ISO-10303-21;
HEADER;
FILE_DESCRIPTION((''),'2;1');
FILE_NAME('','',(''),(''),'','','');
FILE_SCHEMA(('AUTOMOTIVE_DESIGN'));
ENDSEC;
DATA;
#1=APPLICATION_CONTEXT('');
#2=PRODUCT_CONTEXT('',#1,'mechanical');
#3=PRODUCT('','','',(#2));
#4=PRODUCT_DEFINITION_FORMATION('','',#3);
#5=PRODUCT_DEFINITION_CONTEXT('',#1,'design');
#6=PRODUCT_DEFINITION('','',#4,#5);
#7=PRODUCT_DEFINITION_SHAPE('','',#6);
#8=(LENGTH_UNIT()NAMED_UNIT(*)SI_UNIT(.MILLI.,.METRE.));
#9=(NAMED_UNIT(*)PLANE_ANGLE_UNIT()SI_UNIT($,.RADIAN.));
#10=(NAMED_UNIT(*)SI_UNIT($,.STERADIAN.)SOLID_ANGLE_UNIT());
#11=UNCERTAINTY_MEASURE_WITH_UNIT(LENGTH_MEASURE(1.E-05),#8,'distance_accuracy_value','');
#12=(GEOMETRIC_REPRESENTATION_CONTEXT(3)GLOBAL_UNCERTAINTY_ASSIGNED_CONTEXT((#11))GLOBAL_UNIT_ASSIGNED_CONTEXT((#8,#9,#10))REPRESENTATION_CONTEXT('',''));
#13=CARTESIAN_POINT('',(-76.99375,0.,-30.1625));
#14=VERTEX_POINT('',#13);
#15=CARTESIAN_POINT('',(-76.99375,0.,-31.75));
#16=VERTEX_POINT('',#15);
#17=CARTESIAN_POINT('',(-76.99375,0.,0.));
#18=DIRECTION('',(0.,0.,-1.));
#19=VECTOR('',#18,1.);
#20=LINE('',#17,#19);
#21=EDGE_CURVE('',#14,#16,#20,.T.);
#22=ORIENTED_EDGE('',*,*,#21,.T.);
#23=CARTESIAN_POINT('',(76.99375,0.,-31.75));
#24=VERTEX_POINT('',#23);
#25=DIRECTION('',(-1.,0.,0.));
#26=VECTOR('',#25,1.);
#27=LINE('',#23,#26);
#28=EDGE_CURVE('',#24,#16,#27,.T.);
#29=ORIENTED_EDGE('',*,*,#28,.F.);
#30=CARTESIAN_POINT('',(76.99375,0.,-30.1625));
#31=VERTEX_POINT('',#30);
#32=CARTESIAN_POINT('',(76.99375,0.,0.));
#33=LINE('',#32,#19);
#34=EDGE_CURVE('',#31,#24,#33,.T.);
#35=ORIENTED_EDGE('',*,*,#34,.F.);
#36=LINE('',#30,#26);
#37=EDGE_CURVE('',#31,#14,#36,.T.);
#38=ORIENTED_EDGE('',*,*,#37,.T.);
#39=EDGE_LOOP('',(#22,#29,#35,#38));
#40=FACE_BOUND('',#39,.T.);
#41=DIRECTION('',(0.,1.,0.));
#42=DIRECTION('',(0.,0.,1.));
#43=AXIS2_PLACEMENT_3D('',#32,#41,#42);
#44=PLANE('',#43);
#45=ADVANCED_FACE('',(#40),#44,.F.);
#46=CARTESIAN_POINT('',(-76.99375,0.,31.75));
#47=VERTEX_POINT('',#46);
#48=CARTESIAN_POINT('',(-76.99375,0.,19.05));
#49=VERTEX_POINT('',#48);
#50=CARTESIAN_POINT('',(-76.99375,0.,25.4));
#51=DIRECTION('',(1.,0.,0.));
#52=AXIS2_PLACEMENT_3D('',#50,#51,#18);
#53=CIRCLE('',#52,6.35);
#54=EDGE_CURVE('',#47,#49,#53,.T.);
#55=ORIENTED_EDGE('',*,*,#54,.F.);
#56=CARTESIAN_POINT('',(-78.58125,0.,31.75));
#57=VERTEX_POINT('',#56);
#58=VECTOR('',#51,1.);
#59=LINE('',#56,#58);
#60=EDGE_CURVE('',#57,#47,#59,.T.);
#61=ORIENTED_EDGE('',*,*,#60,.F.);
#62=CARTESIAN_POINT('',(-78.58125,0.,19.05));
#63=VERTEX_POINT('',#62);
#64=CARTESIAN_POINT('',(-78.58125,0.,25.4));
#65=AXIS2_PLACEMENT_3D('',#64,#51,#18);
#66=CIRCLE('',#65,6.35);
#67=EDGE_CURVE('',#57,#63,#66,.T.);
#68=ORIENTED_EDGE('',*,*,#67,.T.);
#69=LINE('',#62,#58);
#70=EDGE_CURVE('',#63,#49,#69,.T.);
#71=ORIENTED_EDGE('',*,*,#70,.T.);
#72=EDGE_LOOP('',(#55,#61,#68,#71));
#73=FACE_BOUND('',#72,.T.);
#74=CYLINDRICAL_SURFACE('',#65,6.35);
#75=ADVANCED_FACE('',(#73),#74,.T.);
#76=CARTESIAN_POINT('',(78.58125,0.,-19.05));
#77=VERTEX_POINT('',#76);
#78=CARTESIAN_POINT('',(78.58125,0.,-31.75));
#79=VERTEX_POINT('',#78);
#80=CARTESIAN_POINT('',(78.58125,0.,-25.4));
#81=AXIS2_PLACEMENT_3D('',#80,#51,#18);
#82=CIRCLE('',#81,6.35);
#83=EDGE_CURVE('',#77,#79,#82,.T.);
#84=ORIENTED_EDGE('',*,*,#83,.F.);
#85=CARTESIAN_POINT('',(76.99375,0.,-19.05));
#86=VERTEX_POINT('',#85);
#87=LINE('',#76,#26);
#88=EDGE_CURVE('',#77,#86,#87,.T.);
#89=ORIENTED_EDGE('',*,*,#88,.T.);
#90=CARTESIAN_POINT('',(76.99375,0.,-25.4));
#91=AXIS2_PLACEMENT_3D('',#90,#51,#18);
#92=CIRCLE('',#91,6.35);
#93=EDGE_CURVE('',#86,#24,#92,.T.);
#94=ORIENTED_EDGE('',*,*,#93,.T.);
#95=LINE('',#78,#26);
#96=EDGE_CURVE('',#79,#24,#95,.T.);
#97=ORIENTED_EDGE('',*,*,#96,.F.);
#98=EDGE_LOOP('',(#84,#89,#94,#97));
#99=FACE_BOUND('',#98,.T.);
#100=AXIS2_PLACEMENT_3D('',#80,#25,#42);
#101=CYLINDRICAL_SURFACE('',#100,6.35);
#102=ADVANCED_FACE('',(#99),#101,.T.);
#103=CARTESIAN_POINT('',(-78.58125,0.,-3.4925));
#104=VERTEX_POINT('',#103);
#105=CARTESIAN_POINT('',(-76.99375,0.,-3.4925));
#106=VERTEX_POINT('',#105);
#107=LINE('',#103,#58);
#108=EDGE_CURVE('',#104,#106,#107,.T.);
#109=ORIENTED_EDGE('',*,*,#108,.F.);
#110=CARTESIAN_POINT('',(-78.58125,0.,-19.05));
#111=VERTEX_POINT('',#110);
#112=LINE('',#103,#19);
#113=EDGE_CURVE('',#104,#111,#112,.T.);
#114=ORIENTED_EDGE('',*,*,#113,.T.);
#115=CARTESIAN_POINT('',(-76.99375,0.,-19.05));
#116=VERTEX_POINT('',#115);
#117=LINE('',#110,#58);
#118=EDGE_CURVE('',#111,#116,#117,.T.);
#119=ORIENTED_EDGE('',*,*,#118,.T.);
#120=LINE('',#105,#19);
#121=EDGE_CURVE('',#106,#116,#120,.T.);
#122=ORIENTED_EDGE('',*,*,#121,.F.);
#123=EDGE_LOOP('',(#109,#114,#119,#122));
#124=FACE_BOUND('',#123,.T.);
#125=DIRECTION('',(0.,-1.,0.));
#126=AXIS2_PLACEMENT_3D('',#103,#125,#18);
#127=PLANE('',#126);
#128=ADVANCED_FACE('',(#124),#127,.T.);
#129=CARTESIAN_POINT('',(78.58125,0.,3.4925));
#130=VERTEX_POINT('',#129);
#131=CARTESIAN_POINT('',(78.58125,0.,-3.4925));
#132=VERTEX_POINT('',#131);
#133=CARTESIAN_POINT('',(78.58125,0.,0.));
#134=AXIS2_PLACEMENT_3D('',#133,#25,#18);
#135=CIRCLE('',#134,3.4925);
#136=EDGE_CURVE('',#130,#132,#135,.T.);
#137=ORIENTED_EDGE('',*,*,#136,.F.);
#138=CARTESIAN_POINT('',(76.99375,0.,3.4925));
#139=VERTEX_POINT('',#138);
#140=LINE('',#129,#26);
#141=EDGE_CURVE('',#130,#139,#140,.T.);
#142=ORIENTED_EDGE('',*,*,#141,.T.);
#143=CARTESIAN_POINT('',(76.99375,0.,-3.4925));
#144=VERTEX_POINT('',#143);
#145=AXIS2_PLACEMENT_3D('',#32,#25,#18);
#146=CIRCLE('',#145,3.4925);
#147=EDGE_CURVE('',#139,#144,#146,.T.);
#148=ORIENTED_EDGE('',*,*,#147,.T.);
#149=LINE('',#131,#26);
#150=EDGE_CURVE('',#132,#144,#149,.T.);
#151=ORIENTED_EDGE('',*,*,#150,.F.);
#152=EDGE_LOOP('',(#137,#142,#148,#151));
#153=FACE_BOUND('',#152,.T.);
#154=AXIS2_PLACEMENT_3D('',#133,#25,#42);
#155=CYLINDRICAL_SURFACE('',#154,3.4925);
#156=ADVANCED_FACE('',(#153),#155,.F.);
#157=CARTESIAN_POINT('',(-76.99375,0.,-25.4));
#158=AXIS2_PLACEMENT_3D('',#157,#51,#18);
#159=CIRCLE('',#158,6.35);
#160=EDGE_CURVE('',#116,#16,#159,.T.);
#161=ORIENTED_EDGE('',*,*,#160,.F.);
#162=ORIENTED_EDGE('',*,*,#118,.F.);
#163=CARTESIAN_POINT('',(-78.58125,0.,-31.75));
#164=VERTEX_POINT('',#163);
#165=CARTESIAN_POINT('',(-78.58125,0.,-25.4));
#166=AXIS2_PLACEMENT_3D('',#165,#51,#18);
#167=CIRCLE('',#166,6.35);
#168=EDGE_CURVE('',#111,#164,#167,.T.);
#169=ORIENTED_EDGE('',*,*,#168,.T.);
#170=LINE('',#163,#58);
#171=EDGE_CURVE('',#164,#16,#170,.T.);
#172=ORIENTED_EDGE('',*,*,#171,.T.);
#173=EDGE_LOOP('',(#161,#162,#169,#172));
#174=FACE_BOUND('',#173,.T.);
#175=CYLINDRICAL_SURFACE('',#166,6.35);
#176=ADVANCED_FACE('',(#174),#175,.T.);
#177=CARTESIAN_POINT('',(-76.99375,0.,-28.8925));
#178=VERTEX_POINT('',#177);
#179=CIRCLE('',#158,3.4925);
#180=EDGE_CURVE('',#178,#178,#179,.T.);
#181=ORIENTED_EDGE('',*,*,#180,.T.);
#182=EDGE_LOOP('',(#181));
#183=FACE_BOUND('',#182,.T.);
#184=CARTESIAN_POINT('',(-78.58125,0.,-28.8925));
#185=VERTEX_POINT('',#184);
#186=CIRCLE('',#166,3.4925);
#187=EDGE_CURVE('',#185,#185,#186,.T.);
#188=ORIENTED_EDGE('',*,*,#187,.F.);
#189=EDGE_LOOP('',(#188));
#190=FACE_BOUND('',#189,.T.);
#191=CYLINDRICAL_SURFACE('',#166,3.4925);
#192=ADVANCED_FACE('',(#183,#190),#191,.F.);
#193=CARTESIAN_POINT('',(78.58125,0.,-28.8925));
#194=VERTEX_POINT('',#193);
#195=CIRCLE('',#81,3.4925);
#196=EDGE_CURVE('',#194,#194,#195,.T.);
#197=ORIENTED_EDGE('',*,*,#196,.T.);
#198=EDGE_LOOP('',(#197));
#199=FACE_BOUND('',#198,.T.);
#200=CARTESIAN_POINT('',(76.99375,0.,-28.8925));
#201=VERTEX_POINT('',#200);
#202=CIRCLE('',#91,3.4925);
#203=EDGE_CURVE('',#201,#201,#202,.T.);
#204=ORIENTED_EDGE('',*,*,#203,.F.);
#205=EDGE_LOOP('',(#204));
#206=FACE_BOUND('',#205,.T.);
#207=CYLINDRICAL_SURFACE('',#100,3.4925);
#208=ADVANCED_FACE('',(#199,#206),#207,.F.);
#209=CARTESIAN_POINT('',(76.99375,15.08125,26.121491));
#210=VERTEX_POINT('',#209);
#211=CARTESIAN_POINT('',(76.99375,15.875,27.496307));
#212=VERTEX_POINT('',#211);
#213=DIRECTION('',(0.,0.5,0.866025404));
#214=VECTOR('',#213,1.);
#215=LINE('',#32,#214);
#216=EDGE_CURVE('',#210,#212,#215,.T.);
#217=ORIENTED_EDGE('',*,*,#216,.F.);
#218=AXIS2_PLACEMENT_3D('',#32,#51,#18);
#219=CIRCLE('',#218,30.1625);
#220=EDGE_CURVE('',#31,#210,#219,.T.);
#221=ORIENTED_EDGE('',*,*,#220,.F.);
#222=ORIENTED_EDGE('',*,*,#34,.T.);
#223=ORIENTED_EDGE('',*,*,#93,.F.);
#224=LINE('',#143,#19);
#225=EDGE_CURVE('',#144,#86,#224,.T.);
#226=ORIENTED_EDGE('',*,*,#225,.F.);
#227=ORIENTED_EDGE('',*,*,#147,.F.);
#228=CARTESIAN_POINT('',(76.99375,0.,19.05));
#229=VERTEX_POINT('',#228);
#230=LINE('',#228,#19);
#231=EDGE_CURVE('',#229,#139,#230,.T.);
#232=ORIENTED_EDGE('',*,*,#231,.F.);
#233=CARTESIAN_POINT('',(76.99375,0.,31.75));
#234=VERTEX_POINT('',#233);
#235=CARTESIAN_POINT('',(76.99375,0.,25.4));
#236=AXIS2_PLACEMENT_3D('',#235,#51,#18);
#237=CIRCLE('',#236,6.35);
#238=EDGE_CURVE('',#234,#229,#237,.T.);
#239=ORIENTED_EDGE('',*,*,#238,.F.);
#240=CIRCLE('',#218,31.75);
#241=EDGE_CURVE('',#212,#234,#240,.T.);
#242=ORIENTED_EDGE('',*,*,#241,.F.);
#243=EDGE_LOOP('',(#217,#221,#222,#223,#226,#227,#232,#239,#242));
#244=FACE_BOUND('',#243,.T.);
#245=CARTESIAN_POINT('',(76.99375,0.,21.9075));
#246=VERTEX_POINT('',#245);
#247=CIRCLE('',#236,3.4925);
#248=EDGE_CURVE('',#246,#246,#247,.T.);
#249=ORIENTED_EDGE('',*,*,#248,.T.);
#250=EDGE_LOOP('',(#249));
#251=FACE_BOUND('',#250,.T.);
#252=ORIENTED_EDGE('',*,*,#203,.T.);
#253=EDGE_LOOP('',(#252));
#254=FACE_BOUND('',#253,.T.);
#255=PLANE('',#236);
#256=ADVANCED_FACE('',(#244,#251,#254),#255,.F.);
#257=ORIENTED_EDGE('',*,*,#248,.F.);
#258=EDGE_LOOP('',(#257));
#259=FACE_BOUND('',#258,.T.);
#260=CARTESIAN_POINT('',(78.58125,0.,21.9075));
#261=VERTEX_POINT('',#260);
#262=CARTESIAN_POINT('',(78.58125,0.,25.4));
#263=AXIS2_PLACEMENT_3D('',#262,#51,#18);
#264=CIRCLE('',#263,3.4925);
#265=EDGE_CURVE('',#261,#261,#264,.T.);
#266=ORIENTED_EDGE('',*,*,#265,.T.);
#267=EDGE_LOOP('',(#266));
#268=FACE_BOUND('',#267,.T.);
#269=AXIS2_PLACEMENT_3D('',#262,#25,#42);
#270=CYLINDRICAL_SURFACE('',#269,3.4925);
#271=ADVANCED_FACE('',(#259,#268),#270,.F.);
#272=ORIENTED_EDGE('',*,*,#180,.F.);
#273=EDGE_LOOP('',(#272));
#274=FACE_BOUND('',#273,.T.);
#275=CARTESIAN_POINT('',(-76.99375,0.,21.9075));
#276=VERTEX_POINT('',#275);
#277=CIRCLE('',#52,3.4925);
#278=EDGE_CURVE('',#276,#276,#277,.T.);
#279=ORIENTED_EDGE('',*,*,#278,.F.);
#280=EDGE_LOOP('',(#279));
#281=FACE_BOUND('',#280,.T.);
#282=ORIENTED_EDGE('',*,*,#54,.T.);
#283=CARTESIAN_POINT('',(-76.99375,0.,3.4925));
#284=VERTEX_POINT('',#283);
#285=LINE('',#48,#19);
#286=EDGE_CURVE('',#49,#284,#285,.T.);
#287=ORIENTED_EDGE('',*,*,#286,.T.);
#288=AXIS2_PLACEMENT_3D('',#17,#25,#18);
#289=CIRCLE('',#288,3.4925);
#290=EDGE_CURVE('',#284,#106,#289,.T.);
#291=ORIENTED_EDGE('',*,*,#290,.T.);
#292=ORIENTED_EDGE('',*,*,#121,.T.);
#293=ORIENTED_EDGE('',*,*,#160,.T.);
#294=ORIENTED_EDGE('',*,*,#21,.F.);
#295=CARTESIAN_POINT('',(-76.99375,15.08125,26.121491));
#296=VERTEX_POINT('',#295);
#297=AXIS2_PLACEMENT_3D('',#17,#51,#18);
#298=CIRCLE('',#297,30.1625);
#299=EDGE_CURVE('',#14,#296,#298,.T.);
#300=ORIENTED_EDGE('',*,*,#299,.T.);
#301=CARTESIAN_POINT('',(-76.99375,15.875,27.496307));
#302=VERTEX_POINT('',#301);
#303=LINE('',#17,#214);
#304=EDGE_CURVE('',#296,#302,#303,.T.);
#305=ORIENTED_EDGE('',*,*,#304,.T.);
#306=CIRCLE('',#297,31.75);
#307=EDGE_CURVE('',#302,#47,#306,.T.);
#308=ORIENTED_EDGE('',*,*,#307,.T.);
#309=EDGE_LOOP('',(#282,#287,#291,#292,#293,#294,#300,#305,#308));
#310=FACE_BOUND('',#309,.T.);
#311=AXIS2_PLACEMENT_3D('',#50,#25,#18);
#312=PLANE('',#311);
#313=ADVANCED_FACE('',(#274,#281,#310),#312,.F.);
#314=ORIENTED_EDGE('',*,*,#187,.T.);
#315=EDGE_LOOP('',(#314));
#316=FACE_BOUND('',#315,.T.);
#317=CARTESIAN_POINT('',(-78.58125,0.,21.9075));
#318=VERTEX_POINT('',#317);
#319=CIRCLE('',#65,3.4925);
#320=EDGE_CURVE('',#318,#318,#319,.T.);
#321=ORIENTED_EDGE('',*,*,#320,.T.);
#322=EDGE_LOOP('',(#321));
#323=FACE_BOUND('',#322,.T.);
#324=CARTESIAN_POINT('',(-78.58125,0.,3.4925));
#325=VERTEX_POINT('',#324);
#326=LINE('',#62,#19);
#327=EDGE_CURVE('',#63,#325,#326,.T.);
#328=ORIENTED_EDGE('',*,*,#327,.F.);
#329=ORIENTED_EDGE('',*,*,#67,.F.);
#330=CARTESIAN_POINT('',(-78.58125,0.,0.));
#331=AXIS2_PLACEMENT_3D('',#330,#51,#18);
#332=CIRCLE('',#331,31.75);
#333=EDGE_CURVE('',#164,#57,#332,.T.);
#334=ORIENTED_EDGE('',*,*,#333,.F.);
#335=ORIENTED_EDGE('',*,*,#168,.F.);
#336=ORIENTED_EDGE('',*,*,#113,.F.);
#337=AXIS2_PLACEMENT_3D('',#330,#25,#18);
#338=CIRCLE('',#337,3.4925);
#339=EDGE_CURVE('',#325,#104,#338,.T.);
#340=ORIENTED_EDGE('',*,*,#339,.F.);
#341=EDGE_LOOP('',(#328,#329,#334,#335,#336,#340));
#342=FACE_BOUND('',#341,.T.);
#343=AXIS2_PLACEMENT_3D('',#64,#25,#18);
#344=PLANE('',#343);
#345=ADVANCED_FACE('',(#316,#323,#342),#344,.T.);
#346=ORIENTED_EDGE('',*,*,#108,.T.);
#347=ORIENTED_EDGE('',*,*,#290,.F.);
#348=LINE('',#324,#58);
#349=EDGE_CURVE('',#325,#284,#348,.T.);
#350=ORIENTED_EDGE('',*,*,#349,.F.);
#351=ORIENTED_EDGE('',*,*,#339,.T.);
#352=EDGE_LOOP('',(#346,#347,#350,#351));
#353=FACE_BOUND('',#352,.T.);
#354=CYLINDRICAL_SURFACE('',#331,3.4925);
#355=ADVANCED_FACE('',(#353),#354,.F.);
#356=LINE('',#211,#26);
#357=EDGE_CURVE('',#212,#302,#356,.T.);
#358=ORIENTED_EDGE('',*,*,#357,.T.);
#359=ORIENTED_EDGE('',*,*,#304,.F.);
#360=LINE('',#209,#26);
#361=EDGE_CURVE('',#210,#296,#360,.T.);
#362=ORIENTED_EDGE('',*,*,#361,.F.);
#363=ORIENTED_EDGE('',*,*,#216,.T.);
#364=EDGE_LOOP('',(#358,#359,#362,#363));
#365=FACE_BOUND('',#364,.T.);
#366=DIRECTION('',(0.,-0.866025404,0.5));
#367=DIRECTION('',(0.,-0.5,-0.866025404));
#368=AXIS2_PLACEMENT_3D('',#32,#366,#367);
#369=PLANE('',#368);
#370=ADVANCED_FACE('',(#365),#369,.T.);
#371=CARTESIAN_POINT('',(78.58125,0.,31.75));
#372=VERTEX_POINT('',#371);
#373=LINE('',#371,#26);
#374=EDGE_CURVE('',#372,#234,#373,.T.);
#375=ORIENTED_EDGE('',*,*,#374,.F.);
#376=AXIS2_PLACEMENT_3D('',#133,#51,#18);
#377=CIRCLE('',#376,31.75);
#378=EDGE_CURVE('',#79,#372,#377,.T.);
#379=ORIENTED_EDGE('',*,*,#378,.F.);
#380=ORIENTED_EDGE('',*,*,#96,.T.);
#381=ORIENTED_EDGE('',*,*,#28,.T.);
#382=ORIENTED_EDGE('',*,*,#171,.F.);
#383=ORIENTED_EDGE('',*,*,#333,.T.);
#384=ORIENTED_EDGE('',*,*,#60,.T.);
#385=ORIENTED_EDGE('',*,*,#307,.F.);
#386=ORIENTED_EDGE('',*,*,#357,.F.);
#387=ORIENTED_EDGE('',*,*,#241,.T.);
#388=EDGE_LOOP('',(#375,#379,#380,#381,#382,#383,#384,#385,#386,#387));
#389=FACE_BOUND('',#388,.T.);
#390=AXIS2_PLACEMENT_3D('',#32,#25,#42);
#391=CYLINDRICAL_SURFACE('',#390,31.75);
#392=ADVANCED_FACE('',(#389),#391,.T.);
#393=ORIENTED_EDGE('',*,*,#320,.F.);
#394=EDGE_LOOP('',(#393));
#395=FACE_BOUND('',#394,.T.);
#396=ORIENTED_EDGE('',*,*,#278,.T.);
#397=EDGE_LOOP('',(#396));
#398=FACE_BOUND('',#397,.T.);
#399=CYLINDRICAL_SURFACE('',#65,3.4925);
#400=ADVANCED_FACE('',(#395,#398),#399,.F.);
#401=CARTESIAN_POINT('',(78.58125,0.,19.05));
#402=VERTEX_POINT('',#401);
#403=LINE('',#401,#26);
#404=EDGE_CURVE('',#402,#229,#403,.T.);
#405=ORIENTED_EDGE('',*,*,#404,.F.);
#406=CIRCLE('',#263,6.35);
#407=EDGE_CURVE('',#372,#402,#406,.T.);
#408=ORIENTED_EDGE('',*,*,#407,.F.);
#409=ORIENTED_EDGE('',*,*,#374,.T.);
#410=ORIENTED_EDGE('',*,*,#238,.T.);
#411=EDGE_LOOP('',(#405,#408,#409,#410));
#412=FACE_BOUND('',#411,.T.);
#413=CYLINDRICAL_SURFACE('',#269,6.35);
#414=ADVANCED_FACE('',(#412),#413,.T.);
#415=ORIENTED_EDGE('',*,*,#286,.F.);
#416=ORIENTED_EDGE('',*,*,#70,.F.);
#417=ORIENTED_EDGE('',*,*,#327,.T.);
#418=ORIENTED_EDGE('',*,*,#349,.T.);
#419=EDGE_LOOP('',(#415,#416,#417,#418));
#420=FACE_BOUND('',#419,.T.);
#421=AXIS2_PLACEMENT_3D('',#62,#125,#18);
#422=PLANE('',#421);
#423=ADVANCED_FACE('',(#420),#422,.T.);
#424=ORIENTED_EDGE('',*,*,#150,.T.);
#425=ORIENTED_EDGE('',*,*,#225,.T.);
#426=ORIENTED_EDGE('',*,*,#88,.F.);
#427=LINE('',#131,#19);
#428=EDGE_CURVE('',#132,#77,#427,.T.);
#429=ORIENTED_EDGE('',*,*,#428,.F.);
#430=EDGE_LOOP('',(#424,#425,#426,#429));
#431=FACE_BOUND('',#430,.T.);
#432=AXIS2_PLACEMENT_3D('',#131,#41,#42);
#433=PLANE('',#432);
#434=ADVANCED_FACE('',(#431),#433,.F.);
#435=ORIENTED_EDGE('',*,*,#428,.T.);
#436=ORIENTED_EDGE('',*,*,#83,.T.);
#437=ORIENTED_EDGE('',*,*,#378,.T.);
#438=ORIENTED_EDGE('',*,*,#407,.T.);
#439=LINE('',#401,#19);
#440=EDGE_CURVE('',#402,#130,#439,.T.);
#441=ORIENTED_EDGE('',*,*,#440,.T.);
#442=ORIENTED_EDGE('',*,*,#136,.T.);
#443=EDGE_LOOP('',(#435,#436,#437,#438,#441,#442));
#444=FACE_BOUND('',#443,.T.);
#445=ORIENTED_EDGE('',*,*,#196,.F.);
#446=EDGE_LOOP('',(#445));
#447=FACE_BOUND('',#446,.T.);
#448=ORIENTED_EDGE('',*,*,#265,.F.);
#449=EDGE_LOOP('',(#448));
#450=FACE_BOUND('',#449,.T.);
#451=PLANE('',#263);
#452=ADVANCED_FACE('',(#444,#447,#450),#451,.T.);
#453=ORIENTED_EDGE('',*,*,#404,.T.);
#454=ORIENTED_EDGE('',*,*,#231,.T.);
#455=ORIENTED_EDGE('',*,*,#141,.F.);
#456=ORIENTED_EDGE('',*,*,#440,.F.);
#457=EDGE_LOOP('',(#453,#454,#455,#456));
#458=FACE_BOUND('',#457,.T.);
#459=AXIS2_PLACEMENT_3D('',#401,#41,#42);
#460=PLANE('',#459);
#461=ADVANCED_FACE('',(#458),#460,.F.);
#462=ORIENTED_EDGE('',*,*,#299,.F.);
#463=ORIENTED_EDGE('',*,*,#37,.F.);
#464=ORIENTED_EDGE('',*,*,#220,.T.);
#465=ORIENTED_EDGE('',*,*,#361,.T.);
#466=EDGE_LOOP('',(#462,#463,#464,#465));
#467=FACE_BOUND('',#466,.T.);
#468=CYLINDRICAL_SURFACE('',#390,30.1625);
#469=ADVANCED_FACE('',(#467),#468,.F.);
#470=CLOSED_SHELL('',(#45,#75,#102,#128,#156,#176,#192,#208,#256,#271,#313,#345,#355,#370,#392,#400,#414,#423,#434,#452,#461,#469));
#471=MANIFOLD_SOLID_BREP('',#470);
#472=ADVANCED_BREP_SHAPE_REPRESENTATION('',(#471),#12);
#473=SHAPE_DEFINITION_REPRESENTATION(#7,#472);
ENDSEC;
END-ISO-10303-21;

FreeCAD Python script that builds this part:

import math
import FreeCAD as App
import Part
import Sketcher
from FreeCAD import Vector
Q = App.Units.Quantity

doc = App.newDocument("Part")
body = doc.addObject("PartDesign::Body", "Body")

# Sketch on YZ plane
sketch1 = body.newObject("Sketcher::SketchObject", "Sketch")
sketch1.AttachmentSupport = (doc.getObject("YZ_Plane"), [""])
sketch1.MapMode = "FlatFace"
sketch1.addGeometry(Part.ArcOfCircle(Part.Circle(Vector(0, 0, 0), Vector(0, 0, 1), 30.2), math.radians(-90), math.radians(60)), False)
sketch1.addGeometry(Part.LineSegment(Vector(0, -30.2, 0), Vector(0, -31.8, 0)), False)
sketch1.addGeometry(Part.ArcOfCircle(Part.Circle(Vector(0, 0, 0), Vector(0, 0, 1), 31.8), math.radians(-90), math.radians(60)), False)
sketch1.addGeometry(Part.LineSegment(Vector(15.9, 27.5, 0), Vector(15.1, 26.1, 0)), False)
sketch1.addConstraint(Sketcher.Constraint("Coincident", 0, 1, 1, 1))
sketch1.addConstraint(Sketcher.Constraint("Coincident", 1, 2, 2, 1))
sketch1.addConstraint(Sketcher.Constraint("Coincident", 2, 2, 3, 1))
sketch1.addConstraint(Sketcher.Constraint("Coincident", 3, 2, 0, 2))
sketch1.addConstraint(Sketcher.Constraint("Vertical", 1))
sketch1.addConstraint(Sketcher.Constraint("Coincident", 0, 3, -1, 1))
sketch1.addConstraint(Sketcher.Constraint("Coincident", 2, 3, -1, 1))
sketch1.addConstraint(Sketcher.Constraint("PointOnObject", 0, 1, -2))
sketch1.addConstraint(Sketcher.Constraint("Radius", 2, Q("1.25 in")))
sketch1.addConstraint(Sketcher.Constraint("Angle", 3, Q("-120 deg")))
sketch1.addConstraint(Sketcher.Constraint("Radius", 0, Q("1.1875 in")))
sketch1.addConstraint(Sketcher.Constraint("DistanceX", -1, 1, 2, 2, Q("0.625 in")))
pad1 = body.newObject("PartDesign::Pad", "Pad")
pad1.Profile = sketch1
pad1.Length = Q("6.0625 in")
pad1.Midplane = True

# Sketch on YZ plane
sketch2 = body.newObject("Sketcher::SketchObject", "Sketch001")
sketch2.AttachmentSupport = (doc.getObject("YZ_Plane"), [""])
sketch2.MapMode = "FlatFace"
sketch2.AttachmentOffset = App.Placement(Vector(0, 0, 3.03125 * 25.4), App.Rotation())
sketch2.addGeometry(Part.LineSegment(Vector(0, 19.1, 0), Vector(0, 3.5, 0)), False)
sketch2.addGeometry(Part.ArcOfCircle(Part.Circle(Vector(0, 0, 0), Vector(0, 0, 1), 3.5), math.radians(-90), math.radians(90)), False)
sketch2.addGeometry(Part.LineSegment(Vector(0, -3.5, 0), Vector(0, -19.1, 0)), False)
sketch2.addGeometry(Part.ArcOfCircle(Part.Circle(Vector(0, -25.4, 0), Vector(0, 0, 1), 6.3), math.radians(90), math.radians(270)), False)
sketch2.addGeometry(Part.ArcOfCircle(Part.Circle(Vector(0, 0, 0), Vector(0, 0, 1), 31.8), math.radians(-90), math.radians(90)), False)
sketch2.addGeometry(Part.ArcOfCircle(Part.Circle(Vector(0, 25.4, 0), Vector(0, 0, 1), 6.3), math.radians(90), math.radians(270)), False)
sketch2.addGeometry(Part.Circle(Vector(0, 25.4, 0), Vector(0, 0, 1), 3.5), False)
sketch2.addGeometry(Part.Circle(Vector(0, -25.4, 0), Vector(0, 0, 1), 3.5), False)
sketch2.addConstraint(Sketcher.Constraint("Coincident", 0, 2, 1, 2))
sketch2.addConstraint(Sketcher.Constraint("Coincident", 1, 1, 2, 1))
sketch2.addConstraint(Sketcher.Constraint("Coincident", 2, 2, 3, 1))
sketch2.addConstraint(Sketcher.Constraint("Tangent", 3, 2, 4, 1))
sketch2.addConstraint(Sketcher.Constraint("Tangent", 4, 2, 5, 1))
sketch2.addConstraint(Sketcher.Constraint("Coincident", 5, 2, 0, 1))
sketch2.addConstraint(Sketcher.Constraint("Vertical", 0))
sketch2.addConstraint(Sketcher.Constraint("Vertical", 2))
sketch2.addConstraint(Sketcher.Constraint("Coincident", 1, 3, -1, 1))
sketch2.addConstraint(Sketcher.Constraint("Coincident", 4, 3, -1, 1))
sketch2.addConstraint(Sketcher.Constraint("Coincident", 6, 3, 5, 3))
sketch2.addConstraint(Sketcher.Constraint("Coincident", 7, 3, 3, 3))
sketch2.addConstraint(Sketcher.Constraint("Equal", 3, 5))
sketch2.addConstraint(Sketcher.Constraint("Equal", 1, 6))
sketch2.addConstraint(Sketcher.Constraint("Equal", 6, 7))
sketch2.addConstraint(Sketcher.Constraint("PointOnObject", 3, 3, -2))
sketch2.addConstraint(Sketcher.Constraint("PointOnObject", 5, 3, -2))
sketch2.addConstraint(Sketcher.Constraint("PointOnObject", 0, 2, -2))
sketch2.addConstraint(Sketcher.Constraint("PointOnObject", 1, 1, -2))
sketch2.addConstraint(Sketcher.Constraint("Radius", 3, Q("0.25 in")))
sketch2.addConstraint(Sketcher.Constraint("Radius", 4, Q("1.25 in")))
sketch2.addConstraint(Sketcher.Constraint("Diameter", 6, Q("0.275 in")))
pad2 = body.newObject("PartDesign::Pad", "Pad001")
pad2.Profile = sketch2
pad2.Length = Q("0.0625 in")
doc.recompute()

mirrored = body.newObject("PartDesign::Mirrored", "Mirrored")
mirrored.Originals = [pad2]
mirrored.MirrorPlane = (doc.getObject("YZ_Plane"), [""])
body.Tip = mirrored

doc.recompute()
